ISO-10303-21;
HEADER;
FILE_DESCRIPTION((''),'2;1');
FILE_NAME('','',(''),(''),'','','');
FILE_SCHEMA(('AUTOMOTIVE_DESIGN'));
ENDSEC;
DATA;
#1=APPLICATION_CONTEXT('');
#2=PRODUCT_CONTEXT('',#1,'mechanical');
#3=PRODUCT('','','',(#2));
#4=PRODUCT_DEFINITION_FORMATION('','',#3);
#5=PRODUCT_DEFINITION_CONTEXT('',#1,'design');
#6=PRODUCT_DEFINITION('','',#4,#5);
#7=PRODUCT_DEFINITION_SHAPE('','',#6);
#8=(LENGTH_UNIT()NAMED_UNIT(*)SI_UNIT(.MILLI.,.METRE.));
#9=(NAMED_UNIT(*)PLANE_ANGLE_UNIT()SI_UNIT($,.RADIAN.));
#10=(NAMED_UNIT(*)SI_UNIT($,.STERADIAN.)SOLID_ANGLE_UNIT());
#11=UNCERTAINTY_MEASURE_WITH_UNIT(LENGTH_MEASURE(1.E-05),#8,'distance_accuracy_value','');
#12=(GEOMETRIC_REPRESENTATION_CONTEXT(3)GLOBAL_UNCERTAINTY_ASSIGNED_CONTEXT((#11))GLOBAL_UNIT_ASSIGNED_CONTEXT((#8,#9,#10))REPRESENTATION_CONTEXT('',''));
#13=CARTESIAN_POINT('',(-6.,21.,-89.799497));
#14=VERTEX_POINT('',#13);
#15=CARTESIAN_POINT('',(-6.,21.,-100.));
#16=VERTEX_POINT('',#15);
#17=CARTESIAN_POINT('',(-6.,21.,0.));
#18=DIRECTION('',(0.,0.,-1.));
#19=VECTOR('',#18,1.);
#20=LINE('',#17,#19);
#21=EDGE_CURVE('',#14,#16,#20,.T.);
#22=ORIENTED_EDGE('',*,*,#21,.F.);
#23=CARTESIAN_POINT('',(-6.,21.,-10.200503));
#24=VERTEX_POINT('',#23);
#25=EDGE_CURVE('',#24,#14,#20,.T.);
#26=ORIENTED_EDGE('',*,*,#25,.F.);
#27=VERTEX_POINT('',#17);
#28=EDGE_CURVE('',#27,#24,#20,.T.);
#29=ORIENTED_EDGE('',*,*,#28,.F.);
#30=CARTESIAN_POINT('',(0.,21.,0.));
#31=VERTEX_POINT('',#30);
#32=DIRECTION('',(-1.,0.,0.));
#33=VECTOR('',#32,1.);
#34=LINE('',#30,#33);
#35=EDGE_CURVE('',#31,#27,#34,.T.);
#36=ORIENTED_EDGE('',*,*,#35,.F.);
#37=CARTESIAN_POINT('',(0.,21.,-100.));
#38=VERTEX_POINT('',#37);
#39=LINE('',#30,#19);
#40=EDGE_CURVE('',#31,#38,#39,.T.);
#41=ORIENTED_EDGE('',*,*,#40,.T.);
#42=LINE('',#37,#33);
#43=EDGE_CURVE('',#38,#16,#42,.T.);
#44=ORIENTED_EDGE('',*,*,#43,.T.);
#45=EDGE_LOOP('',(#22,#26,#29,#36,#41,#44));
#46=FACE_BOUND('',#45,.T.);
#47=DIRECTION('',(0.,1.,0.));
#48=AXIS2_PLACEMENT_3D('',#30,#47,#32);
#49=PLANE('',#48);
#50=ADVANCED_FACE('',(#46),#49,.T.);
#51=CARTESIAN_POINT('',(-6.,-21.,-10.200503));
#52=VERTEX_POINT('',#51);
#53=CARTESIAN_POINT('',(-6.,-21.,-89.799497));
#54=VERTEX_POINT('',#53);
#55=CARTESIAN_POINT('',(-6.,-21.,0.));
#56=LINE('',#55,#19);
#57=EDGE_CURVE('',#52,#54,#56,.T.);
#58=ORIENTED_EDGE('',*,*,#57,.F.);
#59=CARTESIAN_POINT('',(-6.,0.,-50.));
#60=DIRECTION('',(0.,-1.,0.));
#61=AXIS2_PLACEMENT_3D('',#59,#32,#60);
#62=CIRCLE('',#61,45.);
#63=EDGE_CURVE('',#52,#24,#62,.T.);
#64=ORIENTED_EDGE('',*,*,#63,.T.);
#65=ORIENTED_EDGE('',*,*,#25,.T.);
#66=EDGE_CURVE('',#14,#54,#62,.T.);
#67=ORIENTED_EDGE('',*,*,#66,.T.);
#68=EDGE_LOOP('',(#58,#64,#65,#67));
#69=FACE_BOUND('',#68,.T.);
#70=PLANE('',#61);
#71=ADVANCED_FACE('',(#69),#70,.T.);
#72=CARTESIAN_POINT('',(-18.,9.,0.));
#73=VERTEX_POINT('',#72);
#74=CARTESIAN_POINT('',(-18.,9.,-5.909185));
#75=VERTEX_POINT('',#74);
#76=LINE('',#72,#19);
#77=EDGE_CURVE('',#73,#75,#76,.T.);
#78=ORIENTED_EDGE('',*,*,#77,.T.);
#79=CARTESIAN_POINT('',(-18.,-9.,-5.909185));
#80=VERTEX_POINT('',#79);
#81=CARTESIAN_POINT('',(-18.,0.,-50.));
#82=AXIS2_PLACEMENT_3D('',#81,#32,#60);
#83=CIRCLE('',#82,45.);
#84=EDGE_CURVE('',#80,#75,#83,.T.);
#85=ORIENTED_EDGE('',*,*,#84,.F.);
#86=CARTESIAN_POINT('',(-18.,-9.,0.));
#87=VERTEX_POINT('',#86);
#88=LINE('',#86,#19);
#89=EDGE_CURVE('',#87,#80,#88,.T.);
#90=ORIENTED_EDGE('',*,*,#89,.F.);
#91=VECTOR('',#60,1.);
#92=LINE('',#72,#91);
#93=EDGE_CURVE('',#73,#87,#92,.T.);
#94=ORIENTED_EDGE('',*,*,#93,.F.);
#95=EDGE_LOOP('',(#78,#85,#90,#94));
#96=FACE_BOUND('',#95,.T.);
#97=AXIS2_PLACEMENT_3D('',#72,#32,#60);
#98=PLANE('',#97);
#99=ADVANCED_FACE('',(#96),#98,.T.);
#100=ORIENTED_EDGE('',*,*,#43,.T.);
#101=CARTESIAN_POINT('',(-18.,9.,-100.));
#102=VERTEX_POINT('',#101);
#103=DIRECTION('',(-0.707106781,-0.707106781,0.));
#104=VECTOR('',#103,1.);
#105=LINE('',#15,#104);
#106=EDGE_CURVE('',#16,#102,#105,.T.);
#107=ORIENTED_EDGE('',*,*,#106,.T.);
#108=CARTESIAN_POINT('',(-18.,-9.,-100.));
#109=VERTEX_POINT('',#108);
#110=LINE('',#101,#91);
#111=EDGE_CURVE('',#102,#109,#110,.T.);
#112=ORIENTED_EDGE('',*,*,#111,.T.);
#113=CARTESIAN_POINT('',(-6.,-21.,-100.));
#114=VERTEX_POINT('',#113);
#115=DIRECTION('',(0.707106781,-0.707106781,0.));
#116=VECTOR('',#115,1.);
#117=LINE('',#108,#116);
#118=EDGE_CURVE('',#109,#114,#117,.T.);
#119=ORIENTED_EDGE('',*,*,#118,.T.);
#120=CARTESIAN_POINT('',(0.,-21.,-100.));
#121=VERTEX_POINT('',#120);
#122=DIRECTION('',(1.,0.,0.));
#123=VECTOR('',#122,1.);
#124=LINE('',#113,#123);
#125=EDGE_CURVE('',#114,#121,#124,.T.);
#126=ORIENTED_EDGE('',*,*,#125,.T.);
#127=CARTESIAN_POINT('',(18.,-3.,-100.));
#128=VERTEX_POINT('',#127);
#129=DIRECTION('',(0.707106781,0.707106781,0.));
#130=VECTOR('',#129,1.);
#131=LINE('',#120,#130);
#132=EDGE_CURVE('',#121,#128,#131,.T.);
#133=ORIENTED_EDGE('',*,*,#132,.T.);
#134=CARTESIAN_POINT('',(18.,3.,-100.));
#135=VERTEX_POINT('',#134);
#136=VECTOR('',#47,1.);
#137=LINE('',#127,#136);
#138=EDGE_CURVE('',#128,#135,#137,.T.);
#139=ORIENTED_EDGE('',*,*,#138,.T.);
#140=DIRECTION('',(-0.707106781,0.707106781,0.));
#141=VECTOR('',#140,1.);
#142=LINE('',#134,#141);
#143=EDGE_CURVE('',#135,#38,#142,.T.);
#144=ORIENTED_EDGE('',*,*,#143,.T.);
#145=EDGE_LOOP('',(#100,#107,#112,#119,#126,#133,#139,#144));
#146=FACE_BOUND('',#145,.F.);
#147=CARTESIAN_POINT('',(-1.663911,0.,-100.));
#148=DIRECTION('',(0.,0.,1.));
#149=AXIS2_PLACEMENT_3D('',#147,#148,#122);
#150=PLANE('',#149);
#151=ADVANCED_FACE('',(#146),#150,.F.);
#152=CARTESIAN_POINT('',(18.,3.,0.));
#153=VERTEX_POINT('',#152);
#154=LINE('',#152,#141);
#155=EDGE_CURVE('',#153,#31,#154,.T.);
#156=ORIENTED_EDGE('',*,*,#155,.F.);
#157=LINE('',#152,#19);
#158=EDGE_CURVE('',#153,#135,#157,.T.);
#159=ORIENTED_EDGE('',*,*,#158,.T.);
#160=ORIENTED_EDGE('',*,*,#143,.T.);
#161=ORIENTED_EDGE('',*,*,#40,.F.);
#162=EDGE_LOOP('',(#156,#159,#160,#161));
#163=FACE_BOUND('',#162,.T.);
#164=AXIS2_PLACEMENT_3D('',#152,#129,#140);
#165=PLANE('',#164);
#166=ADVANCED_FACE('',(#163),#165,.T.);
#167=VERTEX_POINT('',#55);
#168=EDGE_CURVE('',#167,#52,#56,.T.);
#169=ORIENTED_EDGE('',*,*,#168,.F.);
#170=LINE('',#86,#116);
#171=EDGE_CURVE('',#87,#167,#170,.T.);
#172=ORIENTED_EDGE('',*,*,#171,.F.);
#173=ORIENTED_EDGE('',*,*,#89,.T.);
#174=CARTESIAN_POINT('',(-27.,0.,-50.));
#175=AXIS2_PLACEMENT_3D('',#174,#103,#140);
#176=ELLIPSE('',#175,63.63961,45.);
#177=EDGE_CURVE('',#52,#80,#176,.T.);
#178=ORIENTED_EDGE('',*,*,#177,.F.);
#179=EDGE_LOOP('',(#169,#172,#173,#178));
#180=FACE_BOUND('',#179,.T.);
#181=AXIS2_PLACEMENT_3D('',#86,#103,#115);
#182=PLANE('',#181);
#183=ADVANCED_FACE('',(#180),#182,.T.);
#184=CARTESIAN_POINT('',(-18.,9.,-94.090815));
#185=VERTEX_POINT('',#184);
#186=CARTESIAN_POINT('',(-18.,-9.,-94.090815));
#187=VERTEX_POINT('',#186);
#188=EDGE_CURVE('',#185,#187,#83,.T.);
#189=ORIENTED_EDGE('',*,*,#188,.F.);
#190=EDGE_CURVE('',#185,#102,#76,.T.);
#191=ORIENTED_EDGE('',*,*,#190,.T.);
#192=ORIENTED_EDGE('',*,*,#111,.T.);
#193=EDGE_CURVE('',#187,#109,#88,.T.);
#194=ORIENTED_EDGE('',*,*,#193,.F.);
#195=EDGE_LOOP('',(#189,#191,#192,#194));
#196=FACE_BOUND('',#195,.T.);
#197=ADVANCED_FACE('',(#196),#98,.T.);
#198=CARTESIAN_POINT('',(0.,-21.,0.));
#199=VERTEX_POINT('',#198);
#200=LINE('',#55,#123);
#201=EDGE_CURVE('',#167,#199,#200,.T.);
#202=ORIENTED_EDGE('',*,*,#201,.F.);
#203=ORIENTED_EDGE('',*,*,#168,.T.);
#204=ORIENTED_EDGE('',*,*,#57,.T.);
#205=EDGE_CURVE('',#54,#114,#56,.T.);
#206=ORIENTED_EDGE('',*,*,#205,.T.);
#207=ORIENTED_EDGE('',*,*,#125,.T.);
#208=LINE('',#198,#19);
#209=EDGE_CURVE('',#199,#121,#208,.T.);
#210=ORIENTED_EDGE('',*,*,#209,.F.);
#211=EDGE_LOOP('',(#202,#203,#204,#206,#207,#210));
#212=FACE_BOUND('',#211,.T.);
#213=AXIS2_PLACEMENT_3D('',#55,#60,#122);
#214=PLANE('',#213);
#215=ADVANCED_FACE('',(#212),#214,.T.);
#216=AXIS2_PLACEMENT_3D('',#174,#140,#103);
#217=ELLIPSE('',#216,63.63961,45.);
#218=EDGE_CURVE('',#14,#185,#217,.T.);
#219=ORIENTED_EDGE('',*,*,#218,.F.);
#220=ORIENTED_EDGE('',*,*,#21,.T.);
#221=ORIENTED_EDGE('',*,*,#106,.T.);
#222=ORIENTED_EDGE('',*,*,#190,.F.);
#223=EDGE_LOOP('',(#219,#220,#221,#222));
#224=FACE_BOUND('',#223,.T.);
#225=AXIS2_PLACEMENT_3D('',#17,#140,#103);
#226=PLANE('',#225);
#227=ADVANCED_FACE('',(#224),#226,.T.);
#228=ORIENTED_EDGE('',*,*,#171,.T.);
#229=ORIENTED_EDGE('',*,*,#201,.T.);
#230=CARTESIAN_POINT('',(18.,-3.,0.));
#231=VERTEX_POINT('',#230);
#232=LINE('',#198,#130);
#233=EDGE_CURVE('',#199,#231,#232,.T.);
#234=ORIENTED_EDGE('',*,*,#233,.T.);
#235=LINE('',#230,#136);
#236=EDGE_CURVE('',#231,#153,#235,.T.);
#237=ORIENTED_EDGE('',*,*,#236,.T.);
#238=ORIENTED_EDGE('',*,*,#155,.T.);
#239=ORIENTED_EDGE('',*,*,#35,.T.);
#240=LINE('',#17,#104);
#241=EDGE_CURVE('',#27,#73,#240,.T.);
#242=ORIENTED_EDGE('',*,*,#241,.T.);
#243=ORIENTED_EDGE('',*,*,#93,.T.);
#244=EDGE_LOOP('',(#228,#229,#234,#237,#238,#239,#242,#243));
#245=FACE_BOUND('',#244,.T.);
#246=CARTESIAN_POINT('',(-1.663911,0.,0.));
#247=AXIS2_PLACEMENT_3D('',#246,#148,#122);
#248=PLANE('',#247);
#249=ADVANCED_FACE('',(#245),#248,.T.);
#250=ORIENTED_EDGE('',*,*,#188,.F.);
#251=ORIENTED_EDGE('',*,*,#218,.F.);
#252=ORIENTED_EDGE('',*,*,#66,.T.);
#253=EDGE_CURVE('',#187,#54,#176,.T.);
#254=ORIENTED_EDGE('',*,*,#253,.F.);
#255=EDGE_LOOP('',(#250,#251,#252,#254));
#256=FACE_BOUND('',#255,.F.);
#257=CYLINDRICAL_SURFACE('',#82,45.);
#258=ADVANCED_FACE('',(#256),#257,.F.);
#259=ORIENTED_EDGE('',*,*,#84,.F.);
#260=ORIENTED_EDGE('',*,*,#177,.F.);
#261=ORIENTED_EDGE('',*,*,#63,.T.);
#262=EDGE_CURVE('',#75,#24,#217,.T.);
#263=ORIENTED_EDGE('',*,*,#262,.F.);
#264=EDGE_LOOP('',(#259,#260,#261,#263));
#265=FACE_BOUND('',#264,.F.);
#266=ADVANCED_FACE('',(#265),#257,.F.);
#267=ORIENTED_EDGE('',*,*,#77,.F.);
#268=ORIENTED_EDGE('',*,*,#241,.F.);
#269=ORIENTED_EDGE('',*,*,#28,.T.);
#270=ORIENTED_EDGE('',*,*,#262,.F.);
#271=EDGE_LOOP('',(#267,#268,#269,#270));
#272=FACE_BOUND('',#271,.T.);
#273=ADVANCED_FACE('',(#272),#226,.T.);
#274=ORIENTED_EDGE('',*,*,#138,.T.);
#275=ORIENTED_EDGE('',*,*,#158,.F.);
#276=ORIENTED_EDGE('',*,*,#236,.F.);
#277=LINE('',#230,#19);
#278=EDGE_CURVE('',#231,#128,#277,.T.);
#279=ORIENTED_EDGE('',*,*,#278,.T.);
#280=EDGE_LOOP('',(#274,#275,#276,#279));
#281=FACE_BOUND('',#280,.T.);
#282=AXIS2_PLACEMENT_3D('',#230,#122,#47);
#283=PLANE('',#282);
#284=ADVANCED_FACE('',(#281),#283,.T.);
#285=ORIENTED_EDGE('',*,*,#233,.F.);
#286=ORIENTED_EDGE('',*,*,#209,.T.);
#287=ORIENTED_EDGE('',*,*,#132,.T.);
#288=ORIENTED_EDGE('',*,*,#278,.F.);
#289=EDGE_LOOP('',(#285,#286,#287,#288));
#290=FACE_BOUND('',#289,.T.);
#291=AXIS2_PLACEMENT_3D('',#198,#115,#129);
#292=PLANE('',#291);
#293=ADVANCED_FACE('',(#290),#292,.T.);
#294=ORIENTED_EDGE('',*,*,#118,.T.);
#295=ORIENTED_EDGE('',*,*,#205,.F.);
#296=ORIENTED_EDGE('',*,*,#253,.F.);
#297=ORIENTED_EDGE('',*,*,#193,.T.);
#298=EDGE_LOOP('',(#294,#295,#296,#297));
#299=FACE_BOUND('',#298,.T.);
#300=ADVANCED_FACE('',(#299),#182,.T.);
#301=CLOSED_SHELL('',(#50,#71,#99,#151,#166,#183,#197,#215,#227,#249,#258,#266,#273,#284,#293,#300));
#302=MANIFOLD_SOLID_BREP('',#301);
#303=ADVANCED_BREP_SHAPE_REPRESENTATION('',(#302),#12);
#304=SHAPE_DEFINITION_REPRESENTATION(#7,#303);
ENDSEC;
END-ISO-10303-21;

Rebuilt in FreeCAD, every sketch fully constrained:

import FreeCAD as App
import Part
import Sketcher
from FreeCAD import Vector
Q = App.Units.Quantity

doc = App.newDocument("Part")
body = doc.addObject("PartDesign::Body", "Body")

# Sketch on XY plane
sketch1 = body.newObject("Sketcher::SketchObject", "Sketch")
sketch1.AttachmentSupport = (doc.getObject("XY_Plane"), [""])
sketch1.MapMode = "FlatFace"
sketch1.addGeometry(Part.LineSegment(Vector(-18, 9, 0), Vector(-18, -9, 0)), False)
sketch1.addGeometry(Part.LineSegment(Vector(-18, -9, 0), Vector(-6, -21, 0)), False)
sketch1.addGeometry(Part.LineSegment(Vector(-6, -21, 0), Vector(0, -21, 0)), False)
sketch1.addGeometry(Part.LineSegment(Vector(0, -21, 0), Vector(18, -3, 0)), False)
sketch1.addGeometry(Part.LineSegment(Vector(18, -3, 0), Vector(18, 3, 0)), False)
sketch1.addGeometry(Part.LineSegment(Vector(18, 3, 0), Vector(0, 21, 0)), False)
sketch1.addGeometry(Part.LineSegment(Vector(0, 21, 0), Vector(-6, 21, 0)), False)
sketch1.addGeometry(Part.LineSegment(Vector(-6, 21, 0), Vector(-18, 9, 0)), False)
sketch1.addConstraint(Sketcher.Constraint("Coincident", 0, 2, 1, 1))
sketch1.addConstraint(Sketcher.Constraint("Coincident", 1, 2, 2, 1))
sketch1.addConstraint(Sketcher.Constraint("Coincident", 2, 2, 3, 1))
sketch1.addConstraint(Sketcher.Constraint("Coincident", 3, 2, 4, 1))
sketch1.addConstraint(Sketcher.Constraint("Coincident", 4, 2, 5, 1))
sketch1.addConstraint(Sketcher.Constraint("Coincident", 5, 2, 6, 1))
sketch1.addConstraint(Sketcher.Constraint("Coincident", 6, 2, 7, 1))
sketch1.addConstraint(Sketcher.Constraint("Coincident", 7, 2, 0, 1))
sketch1.addConstraint(Sketcher.Constraint("Vertical", 0))
sketch1.addConstraint(Sketcher.Constraint("Horizontal", 2))
sketch1.addConstraint(Sketcher.Constraint("Vertical", 4))
sketch1.addConstraint(Sketcher.Constraint("Horizontal", 6))
sketch1.addConstraint(Sketcher.Constraint("Symmetric", 2, 2, 5, 2, -1, 1))
sketch1.addConstraint(Sketcher.Constraint("PointOnObject", 2, 2, -2))
sketch1.addConstraint(Sketcher.Constraint("Perpendicular", 1, 3))
sketch1.addConstraint(Sketcher.Constraint("Perpendicular", 3, 5))
sketch1.addConstraint(Sketcher.Constraint("Perpendicular", 5, 7))
sketch1.addConstraint(Sketcher.Constraint("Vertical", 1, 2, 6, 2))
sketch1.addConstraint(Sketcher.Constraint("Equal", 6, 4))
sketch1.addConstraint(Sketcher.Constraint("Equal", 3, 5))
sketch1.addConstraint(Sketcher.Constraint("DistanceX", 2, 1, 2, 2, Q("6 mm")))
sketch1.addConstraint(Sketcher.Constraint("DistanceY", 0, 2, 0, 1, Q("18 mm")))
sketch1.addConstraint(Sketcher.Constraint("DistanceX", 0, 2, -1, 1, Q("18 mm")))
pad1 = body.newObject("PartDesign::Pad", "Pad")
pad1.Profile = sketch1
pad1.Length = 100
pad1.Reversed = True

# Sketch on YZ plane
sketch2 = body.newObject("Sketcher::SketchObject", "Sketch001")
sketch2.AttachmentSupport = (doc.getObject("YZ_Plane"), [""])
sketch2.MapMode = "FlatFace"
sketch2.AttachmentOffset = App.Placement(Vector(0, 0, -18), App.Rotation())
sketch2.addGeometry(Part.Circle(Vector(0, -50, 0), Vector(0, 0, 1), 45), False)
sketch2.addConstraint(Sketcher.Constraint("PointOnObject", 0, 3, -2))
sketch2.addConstraint(Sketcher.Constraint("Diameter", 0, Q("90 mm")))
sketch2.addConstraint(Sketcher.Constraint("DistanceY", 0, 3, -1, 1, Q("50 mm")))
pocket1 = body.newObject("PartDesign::Pocket", "Pocket")
pocket1.Profile = sketch2
pocket1.Length = 12
pocket1.Reversed = True

doc.recompute()
